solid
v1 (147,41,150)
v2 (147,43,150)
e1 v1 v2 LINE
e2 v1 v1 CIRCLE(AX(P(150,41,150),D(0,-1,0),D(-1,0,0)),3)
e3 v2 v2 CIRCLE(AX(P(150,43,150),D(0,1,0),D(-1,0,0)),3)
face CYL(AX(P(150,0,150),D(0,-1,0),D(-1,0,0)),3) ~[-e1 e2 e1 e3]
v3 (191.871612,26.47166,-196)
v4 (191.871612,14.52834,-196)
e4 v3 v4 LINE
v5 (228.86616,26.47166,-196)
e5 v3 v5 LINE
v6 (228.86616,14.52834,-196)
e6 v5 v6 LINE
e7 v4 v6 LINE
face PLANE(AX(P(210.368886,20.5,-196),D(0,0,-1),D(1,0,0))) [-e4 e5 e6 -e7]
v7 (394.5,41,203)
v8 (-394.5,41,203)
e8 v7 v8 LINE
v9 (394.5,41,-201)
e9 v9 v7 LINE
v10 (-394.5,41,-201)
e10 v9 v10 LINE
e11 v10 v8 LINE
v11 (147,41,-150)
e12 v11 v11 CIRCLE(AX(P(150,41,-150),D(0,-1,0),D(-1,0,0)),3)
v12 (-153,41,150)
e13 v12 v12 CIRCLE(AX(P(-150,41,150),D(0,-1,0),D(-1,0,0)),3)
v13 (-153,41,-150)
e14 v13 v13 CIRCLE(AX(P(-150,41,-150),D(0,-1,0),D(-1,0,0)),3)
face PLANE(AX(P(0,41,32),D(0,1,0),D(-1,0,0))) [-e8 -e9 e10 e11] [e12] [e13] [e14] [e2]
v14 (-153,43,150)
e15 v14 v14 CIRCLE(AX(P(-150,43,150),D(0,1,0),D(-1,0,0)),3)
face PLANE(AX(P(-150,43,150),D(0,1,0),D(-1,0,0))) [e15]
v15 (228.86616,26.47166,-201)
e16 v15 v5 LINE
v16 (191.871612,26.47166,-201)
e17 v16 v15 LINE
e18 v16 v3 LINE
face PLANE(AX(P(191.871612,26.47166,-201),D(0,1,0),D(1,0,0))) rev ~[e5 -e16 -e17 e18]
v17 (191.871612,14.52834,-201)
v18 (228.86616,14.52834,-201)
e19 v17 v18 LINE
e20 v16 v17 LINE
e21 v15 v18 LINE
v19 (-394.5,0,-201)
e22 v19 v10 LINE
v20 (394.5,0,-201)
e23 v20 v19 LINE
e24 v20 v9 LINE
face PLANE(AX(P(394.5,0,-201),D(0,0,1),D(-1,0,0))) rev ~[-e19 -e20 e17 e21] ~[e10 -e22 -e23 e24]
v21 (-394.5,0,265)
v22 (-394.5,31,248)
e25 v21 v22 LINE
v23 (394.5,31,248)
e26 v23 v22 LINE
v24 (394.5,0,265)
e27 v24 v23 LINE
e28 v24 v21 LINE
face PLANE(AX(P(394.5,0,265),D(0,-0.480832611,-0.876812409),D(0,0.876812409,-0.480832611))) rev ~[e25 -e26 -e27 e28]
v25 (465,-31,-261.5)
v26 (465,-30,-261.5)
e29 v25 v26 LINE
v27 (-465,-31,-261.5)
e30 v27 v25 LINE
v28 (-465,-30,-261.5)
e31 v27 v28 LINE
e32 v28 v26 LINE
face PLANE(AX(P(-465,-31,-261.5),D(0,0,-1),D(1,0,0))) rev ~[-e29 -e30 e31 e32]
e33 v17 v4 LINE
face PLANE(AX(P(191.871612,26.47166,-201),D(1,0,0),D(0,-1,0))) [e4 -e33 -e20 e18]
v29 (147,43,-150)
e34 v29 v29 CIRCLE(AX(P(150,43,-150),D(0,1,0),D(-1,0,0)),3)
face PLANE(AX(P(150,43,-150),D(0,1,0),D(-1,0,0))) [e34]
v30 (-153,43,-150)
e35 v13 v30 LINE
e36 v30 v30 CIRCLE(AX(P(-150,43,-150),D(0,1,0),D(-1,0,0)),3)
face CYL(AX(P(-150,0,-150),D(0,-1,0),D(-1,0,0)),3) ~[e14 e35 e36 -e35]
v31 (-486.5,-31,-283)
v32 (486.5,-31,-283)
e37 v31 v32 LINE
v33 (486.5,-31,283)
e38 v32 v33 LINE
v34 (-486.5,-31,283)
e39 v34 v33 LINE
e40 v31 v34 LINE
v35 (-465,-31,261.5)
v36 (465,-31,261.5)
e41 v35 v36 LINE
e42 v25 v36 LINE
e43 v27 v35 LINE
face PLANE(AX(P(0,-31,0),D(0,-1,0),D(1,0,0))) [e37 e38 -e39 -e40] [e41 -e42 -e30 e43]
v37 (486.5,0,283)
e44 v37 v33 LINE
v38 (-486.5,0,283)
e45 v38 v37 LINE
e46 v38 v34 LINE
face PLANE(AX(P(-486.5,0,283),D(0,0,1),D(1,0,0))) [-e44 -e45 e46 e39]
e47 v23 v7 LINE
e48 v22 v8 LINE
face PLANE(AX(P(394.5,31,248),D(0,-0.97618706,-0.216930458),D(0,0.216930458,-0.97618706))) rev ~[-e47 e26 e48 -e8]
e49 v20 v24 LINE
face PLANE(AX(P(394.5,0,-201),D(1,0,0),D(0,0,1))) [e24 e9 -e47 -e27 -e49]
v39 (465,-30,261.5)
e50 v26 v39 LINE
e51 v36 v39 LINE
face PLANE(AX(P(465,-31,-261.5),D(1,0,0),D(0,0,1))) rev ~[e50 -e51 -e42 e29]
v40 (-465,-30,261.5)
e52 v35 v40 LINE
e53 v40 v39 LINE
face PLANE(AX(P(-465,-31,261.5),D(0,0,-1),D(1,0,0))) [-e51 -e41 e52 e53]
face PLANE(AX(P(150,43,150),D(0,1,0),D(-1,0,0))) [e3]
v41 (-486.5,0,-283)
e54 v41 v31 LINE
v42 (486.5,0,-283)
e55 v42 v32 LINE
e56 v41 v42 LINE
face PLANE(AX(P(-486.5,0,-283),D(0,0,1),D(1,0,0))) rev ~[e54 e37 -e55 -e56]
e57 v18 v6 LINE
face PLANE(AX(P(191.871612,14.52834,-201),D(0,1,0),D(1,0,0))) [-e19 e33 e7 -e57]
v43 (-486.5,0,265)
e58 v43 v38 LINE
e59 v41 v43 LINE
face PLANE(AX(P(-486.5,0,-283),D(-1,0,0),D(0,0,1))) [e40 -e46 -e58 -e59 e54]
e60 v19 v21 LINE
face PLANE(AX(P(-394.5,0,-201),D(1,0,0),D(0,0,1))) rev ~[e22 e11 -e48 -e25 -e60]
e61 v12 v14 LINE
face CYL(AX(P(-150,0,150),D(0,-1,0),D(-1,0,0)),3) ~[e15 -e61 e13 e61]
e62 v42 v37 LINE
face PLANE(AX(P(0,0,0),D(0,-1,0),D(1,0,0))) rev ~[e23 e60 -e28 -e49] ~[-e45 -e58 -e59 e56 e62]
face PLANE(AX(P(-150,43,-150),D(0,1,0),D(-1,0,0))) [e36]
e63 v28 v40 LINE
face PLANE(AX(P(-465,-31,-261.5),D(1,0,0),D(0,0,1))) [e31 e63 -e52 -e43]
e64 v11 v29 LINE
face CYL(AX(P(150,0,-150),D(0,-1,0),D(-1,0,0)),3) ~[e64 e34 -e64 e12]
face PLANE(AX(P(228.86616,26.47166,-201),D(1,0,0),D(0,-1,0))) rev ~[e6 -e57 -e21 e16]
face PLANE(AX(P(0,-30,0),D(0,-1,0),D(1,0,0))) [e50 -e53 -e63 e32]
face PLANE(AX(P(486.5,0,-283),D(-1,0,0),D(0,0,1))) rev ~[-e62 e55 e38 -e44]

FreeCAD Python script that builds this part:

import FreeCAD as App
import Part
import Sketcher

V = App.Vector


def add_polygon(sketch, points):
    """Adds a closed chain of lines whose ends are joined by coincident constraints."""
    first, n = sketch.GeometryCount, len(points)
    for a, b in zip(points, points[1:] + points[:1]):
        sketch.addGeometry(Part.LineSegment(App.Vector(*a, 0), App.Vector(*b, 0)), False)
    for i in range(n):
        sketch.addConstraint(Sketcher.Constraint("Coincident", first + i, 2, first + (i + 1) % n, 1))

doc = App.newDocument("Part")
params = doc.addObject("Spreadsheet::Sheet", "Params")
for row, (alias, value) in enumerate([
    ("sketch1_width", "973 mm"),
    ("sketch1_height", "566 mm"),
    ("pad1_length", "31 mm"),
    ("sketch2_width", "789 mm"),
    ("sketch2_height", "466 mm"),
    ("pad2_length", "41 mm"),
    ("pocket1_length", "5 mm"),
    ("sketch4_width", "930 mm"),
    ("sketch4_height", "523 mm"),
    ("pocket2_length", "1 mm"),
    ("sketch5_diameter", "6 mm"),
    ("pad3_length", "43 mm"),
    ("sketch6_width", "41 mm"),
    ("sketch6_height", "62 mm"),
], start=1):
    params.set(f"A{row}", alias)
    params.set(f"B{row}", "=" + value)
    params.setAlias(f"B{row}", alias)

body = doc.addObject("PartDesign::Body", "Body")

# Sketch on XZ plane
sketch1 = body.newObject("Sketcher::SketchObject", "Sketch")
sketch1.AttachmentSupport = (doc.getObject("XZ_Plane"), [""])
sketch1.MapMode = "FlatFace"
add_polygon(sketch1, [(-486.5, 283), (-486.5, -283), (486.5, -283), (486.5, 283)])  # lines 0-3
sketch1.addConstraint([
    Sketcher.Constraint("Vertical", 0),
    Sketcher.Constraint("Horizontal", 1),
    Sketcher.Constraint("Vertical", 2),
    Sketcher.Constraint("Horizontal", 3),
    Sketcher.Constraint("Symmetric", 0, 2, 2, 2, -1, 1),
    Sketcher.Constraint("DistanceX", 1, 1, 1, 2, 973.0),
    Sketcher.Constraint("DistanceY", 0, 2, 0, 1, 566.0),
])
sketch1.setExpression("Constraints[9]", "Params.sketch1_width")
sketch1.setExpression("Constraints[10]", "Params.sketch1_height")
pad1 = body.newObject("PartDesign::Pad", "Pad")
pad1.Profile = sketch1
pad1.setExpression("Length", "Params.pad1_length")

# Sketch on XZ plane
sketch2 = body.newObject("Sketcher::SketchObject", "Sketch001")
sketch2.AttachmentSupport = (doc.getObject("XZ_Plane"), [""])
sketch2.MapMode = "FlatFace"
add_polygon(sketch2, [(394.5, 265), (394.5, -201), (-394.5, -201), (-394.5, 265)])  # lines 0-3
sketch2.addConstraint([
    Sketcher.Constraint("Vertical", 0),
    Sketcher.Constraint("Horizontal", 1),
    Sketcher.Constraint("Vertical", 2),
    Sketcher.Constraint("Horizontal", 3),
    Sketcher.Constraint("DistanceX", 1, 2, 1, 1, 789.0),
    Sketcher.Constraint("DistanceY", 0, 2, 0, 1, 466.0),
    Sketcher.Constraint("DistanceY", 0, 2, -1, 1, 201.0),
    Sketcher.Constraint("DistanceX", -1, 1, 0, 2, 394.5),
])
sketch2.setExpression("Constraints[8]", "Params.sketch2_width")
sketch2.setExpression("Constraints[9]", "Params.sketch2_height")
pad2 = body.newObject("PartDesign::Pad", "Pad001")
pad2.Profile = sketch2
pad2.setExpression("Length", "Params.pad2_length")
pad2.Reversed = True

# Sketch on XY plane
sketch3 = body.newObject("Sketcher::SketchObject", "Sketch002")
sketch3.AttachmentSupport = (doc.getObject("XY_Plane"), [""])
sketch3.MapMode = "FlatFace"
sketch3.AttachmentOffset = App.Placement(V(0, 0, -201), App.Rotation())
add_polygon(sketch3, [(191.871612, 14.52834), (191.871612, 26.47166), (228.86616, 26.47166), (228.86616, 14.52834)])  # lines 0-3
sketch3.addConstraint([
    Sketcher.Constraint("Vertical", 0),
    Sketcher.Constraint("Horizontal", 1),
    Sketcher.Constraint("Vertical", 2),
    Sketcher.Constraint("Horizontal", 3),
    Sketcher.Constraint("DistanceY", 0, 1, 0, 2, 11.94332),
    Sketcher.Constraint("DistanceX", 1, 1, 1, 2, 36.994547),
    Sketcher.Constraint("DistanceY", -1, 1, 0, 2, 26.47166),
    Sketcher.Constraint("DistanceX", -1, 1, 1, 2, 228.86616),
])
pocket1 = body.newObject("PartDesign::Pocket", "Pocket")
pocket1.Profile = sketch3
pocket1.setExpression("Length", "Params.pocket1_length")
pocket1.Reversed = True

# Sketch on XZ plane
sketch4 = body.newObject("Sketcher::SketchObject", "Sketch003")
sketch4.AttachmentSupport = (doc.getObject("XZ_Plane"), [""])
sketch4.MapMode = "FlatFace"
sketch4.AttachmentOffset = App.Placement(V(0, 0, 31), App.Rotation())
add_polygon(sketch4, [(-465, 261.5), (-465, -261.5), (465, -261.5), (465, 261.5)])  # lines 0-3
sketch4.addConstraint([
    Sketcher.Constraint("Vertical", 0),
    Sketcher.Constraint("Horizontal", 1),
    Sketcher.Constraint("Vertical", 2),
    Sketcher.Constraint("Horizontal", 3),
    Sketcher.Constraint("Symmetric", 0, 2, 2, 2, -1, 1),
    Sketcher.Constraint("DistanceX", 1, 1, 1, 2, 930.0),
    Sketcher.Constraint("DistanceY", 0, 2, 0, 1, 523.0),
])
sketch4.setExpression("Constraints[9]", "Params.sketch4_width")
sketch4.setExpression("Constraints[10]", "Params.sketch4_height")
pocket2 = body.newObject("PartDesign::Pocket", "Pocket001")
pocket2.Profile = sketch4
pocket2.setExpression("Length", "Params.pocket2_length")

# Sketch on XZ plane
sketch5 = body.newObject("Sketcher::SketchObject", "Sketch004")
sketch5.AttachmentSupport = (doc.getObject("XZ_Plane"), [""])
sketch5.MapMode = "FlatFace"
sketch5.addGeometry([
    Part.Circle(V(150, 150, 0), V(0, 0, 1), 3),
    Part.Circle(V(-150, 150, 0), V(0, 0, 1), 3),
    Part.Circle(V(150, -150, 0), V(0, 0, 1), 3),
    Part.Circle(V(-150, -150, 0), V(0, 0, 1), 3),
], False)
sketch5.addConstraint([
    Sketcher.Constraint("Equal", 0, 1),
    Sketcher.Constraint("Equal", 1, 2),
    Sketcher.Constraint("Equal", 2, 3),
    Sketcher.Constraint("Symmetric", 1, 3, 2, 3, -1, 1),
    Sketcher.Constraint("Symmetric", 0, 3, 3, 3, -1, 1),
    Sketcher.Constraint("Symmetric", 0, 3, 1, 3, -2),
    Sketcher.Constraint("Diameter", 0, 6.0),
    Sketcher.Constraint("DistanceX", -1, 1, 0, 3, 150.0),
    Sketcher.Constraint("DistanceY", -1, 1, 0, 3, 150.0),
])
sketch5.setExpression("Constraints[6]", "Params.sketch5_diameter")
pad3 = body.newObject("PartDesign::Pad", "Pad002")
pad3.Profile = sketch5
pad3.setExpression("Length", "Params.pad3_length")
pad3.Reversed = True

# Sketch on YZ plane
sketch6 = body.newObject("Sketcher::SketchObject", "Sketch005")
sketch6.AttachmentSupport = (doc.getObject("YZ_Plane"), [""])
sketch6.MapMode = "FlatFace"
sketch6.AttachmentOffset = App.Placement(V(0, 0, 394.5), App.Rotation())
add_polygon(sketch6, [(41, 265), (0, 265), (31, 248), (41, 203)])  # lines 0-3
sketch6.addConstraint([
    Sketcher.Constraint("Horizontal", 0),
    Sketcher.Constraint("Vertical", 3),
    Sketcher.Constraint("PointOnObject", 0, 2, -2),
    Sketcher.Constraint("DistanceX", 0, 2, 0, 1, 41.0),
    Sketcher.Constraint("DistanceY", 3, 1, 3, 2, 62.0),
    Sketcher.Constraint("DistanceY", -1, 1, 0, 2, 265.0),
    Sketcher.Constraint("DistanceX", -1, 1, 1, 2, 31.0),
    Sketcher.Constraint("DistanceY", -1, 1, 1, 2, 248.0),
])
sketch6.setExpression("Constraints[7]", "Params.sketch6_width")
sketch6.setExpression("Constraints[8]", "Params.sketch6_height")
pocket3 = body.newObject("PartDesign::Pocket", "Pocket002")
pocket3.Profile = sketch6
pocket3.Type = "ThroughAll"

doc.recompute()
